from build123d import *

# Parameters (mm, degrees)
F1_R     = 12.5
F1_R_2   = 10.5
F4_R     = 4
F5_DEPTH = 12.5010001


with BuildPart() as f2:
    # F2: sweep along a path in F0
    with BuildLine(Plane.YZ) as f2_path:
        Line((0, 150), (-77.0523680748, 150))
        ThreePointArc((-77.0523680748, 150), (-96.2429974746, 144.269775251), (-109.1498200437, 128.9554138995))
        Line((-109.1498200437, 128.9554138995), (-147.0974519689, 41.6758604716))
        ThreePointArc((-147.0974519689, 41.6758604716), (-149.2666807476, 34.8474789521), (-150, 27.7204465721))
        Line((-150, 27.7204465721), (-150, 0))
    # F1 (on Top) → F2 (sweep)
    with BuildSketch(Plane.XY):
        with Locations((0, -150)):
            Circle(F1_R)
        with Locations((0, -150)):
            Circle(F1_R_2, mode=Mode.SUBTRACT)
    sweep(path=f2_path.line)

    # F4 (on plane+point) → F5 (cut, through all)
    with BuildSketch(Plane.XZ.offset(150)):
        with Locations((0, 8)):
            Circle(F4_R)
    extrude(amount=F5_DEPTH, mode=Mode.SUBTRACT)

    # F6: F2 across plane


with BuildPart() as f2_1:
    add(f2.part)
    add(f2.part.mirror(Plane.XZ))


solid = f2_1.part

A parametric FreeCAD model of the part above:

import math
import FreeCAD as App
import Part
import Sketcher
from FreeCAD import Vector

doc = App.newDocument("Part")
body = doc.addObject("PartDesign::Body", "Body")

# Sketch on XY plane
sketch1 = body.newObject("Sketcher::SketchObject", "Sketch")
sketch1.AttachmentSupport = (doc.getObject("XY_Plane"), [""])
sketch1.MapMode = "FlatFace"
sketch1.addGeometry([
    Part.Circle(Vector(0, -150, 0), Vector(0, 0, 1), 12),
    Part.Circle(Vector(0, -150, 0), Vector(0, 0, 1), 10),
], False)
sketch1.addConstraint([
    Sketcher.Constraint("Coincident", 1, 3, 0, 3),
    Sketcher.Constraint("PointOnObject", 0, 3, -2),
    Sketcher.Constraint("Diameter", 0, 25.0),
    Sketcher.Constraint("Diameter", 1, 21.0),
    Sketcher.Constraint("DistanceY", 0, 3, -1, 1, 150.0),
])

# Sketch on YZ plane
sketch2 = body.newObject("Sketcher::SketchObject", "Sketch001")
sketch2.AttachmentSupport = (doc.getObject("YZ_Plane"), [""])
sketch2.MapMode = "FlatFace"
sketch2.addGeometry([
    Part.LineSegment(Vector(0, 150, 0), Vector(-77, 150, 0)),  # 0
    Part.ArcOfCircle(Part.Circle(Vector(-77, 115, 0), Vector(0, 0, 1), 35), math.radians(90), math.radians(157)),  # 1
    Part.LineSegment(Vector(-109, 129, 0), Vector(-147, 42, 0)),  # 2
    Part.ArcOfCircle(Part.Circle(Vector(-115, 28, 0), Vector(0, 0, 1), 35), math.radians(157), math.radians(180)),  # 3
    Part.LineSegment(Vector(-150, 28, 0), Vector(-150, 0, 0)),  # 4
], False)
sketch2.addConstraint([
    Sketcher.Constraint("Tangent", 0, 2, 1, 1),
    Sketcher.Constraint("Tangent", 1, 2, 2, 1),
    Sketcher.Constraint("Tangent", 2, 2, 3, 1),
    Sketcher.Constraint("Tangent", 3, 2, 4, 1),
    Sketcher.Constraint("Horizontal", 0),
    Sketcher.Constraint("Vertical", 4),
    Sketcher.Constraint("Equal", 1, 3),
    Sketcher.Constraint("PointOnObject", 0, 1, -2),
    Sketcher.Constraint("PointOnObject", 4, 2, -1),
    Sketcher.Constraint("Radius", 1, 35.0),
    Sketcher.Constraint("DistanceY", -1, 1, 1, 3, 115.0),
    Sketcher.Constraint("DistanceX", 3, 3, -1, 1, 115.0),
    Sketcher.Constraint("DistanceX", 0, 2, 0, 1, 77.052368),
    Sketcher.Constraint("DistanceY", 4, 2, 4, 1, 27.720447),
])
doc.recompute()

additivepipe = body.newObject("PartDesign::AdditivePipe", "AdditivePipe")
additivepipe.Profile = sketch1
additivepipe.Spine = (sketch2, ["Edge1", "Edge2", "Edge3", "Edge4", "Edge5"])

# Sketch on XZ plane
sketch3 = body.newObject("Sketcher::SketchObject", "Sketch002")
sketch3.AttachmentSupport = (doc.getObject("XZ_Plane"), [""])
sketch3.MapMode = "FlatFace"
sketch3.AttachmentOffset = App.Placement(Vector(0, 0, 150), App.Rotation())
sketch3.addGeometry(Part.Circle(Vector(0, 8, 0), Vector(0, 0, 1), 4), False)
sketch3.addConstraint([
    Sketcher.Constraint("PointOnObject", 0, 3, -2),
    Sketcher.Constraint("Diameter", 0, 8.0),
    Sketcher.Constraint("DistanceY", -1, 1, 0, 3, 8.0),
])
pocket1 = body.newObject("PartDesign::Pocket", "Pocket")
pocket1.Profile = sketch3
pocket1.Type = "ThroughAll"
pocket1.Reversed = True
body2 = doc.addObject("PartDesign::Body", "Body001")
doc.recompute()

body2.BaseFeature = body
doc.recompute()

mirroring = doc.addObject("Part::Mirroring", "Mirroring")
mirroring.Source = body
mirroring.Base = Vector(0, 0, 0)
mirroring.Normal = Vector(0, -1, 0)
body3 = doc.addObject("PartDesign::Body", "Body002")
body3.BaseFeature = mirroring
boolean = body2.newObject("PartDesign::Boolean", "Boolean")
boolean.Type = "Fuse"
boolean.addObjects([body3])
doc.recompute()
mirroring.Visibility = False

doc.recompute()
